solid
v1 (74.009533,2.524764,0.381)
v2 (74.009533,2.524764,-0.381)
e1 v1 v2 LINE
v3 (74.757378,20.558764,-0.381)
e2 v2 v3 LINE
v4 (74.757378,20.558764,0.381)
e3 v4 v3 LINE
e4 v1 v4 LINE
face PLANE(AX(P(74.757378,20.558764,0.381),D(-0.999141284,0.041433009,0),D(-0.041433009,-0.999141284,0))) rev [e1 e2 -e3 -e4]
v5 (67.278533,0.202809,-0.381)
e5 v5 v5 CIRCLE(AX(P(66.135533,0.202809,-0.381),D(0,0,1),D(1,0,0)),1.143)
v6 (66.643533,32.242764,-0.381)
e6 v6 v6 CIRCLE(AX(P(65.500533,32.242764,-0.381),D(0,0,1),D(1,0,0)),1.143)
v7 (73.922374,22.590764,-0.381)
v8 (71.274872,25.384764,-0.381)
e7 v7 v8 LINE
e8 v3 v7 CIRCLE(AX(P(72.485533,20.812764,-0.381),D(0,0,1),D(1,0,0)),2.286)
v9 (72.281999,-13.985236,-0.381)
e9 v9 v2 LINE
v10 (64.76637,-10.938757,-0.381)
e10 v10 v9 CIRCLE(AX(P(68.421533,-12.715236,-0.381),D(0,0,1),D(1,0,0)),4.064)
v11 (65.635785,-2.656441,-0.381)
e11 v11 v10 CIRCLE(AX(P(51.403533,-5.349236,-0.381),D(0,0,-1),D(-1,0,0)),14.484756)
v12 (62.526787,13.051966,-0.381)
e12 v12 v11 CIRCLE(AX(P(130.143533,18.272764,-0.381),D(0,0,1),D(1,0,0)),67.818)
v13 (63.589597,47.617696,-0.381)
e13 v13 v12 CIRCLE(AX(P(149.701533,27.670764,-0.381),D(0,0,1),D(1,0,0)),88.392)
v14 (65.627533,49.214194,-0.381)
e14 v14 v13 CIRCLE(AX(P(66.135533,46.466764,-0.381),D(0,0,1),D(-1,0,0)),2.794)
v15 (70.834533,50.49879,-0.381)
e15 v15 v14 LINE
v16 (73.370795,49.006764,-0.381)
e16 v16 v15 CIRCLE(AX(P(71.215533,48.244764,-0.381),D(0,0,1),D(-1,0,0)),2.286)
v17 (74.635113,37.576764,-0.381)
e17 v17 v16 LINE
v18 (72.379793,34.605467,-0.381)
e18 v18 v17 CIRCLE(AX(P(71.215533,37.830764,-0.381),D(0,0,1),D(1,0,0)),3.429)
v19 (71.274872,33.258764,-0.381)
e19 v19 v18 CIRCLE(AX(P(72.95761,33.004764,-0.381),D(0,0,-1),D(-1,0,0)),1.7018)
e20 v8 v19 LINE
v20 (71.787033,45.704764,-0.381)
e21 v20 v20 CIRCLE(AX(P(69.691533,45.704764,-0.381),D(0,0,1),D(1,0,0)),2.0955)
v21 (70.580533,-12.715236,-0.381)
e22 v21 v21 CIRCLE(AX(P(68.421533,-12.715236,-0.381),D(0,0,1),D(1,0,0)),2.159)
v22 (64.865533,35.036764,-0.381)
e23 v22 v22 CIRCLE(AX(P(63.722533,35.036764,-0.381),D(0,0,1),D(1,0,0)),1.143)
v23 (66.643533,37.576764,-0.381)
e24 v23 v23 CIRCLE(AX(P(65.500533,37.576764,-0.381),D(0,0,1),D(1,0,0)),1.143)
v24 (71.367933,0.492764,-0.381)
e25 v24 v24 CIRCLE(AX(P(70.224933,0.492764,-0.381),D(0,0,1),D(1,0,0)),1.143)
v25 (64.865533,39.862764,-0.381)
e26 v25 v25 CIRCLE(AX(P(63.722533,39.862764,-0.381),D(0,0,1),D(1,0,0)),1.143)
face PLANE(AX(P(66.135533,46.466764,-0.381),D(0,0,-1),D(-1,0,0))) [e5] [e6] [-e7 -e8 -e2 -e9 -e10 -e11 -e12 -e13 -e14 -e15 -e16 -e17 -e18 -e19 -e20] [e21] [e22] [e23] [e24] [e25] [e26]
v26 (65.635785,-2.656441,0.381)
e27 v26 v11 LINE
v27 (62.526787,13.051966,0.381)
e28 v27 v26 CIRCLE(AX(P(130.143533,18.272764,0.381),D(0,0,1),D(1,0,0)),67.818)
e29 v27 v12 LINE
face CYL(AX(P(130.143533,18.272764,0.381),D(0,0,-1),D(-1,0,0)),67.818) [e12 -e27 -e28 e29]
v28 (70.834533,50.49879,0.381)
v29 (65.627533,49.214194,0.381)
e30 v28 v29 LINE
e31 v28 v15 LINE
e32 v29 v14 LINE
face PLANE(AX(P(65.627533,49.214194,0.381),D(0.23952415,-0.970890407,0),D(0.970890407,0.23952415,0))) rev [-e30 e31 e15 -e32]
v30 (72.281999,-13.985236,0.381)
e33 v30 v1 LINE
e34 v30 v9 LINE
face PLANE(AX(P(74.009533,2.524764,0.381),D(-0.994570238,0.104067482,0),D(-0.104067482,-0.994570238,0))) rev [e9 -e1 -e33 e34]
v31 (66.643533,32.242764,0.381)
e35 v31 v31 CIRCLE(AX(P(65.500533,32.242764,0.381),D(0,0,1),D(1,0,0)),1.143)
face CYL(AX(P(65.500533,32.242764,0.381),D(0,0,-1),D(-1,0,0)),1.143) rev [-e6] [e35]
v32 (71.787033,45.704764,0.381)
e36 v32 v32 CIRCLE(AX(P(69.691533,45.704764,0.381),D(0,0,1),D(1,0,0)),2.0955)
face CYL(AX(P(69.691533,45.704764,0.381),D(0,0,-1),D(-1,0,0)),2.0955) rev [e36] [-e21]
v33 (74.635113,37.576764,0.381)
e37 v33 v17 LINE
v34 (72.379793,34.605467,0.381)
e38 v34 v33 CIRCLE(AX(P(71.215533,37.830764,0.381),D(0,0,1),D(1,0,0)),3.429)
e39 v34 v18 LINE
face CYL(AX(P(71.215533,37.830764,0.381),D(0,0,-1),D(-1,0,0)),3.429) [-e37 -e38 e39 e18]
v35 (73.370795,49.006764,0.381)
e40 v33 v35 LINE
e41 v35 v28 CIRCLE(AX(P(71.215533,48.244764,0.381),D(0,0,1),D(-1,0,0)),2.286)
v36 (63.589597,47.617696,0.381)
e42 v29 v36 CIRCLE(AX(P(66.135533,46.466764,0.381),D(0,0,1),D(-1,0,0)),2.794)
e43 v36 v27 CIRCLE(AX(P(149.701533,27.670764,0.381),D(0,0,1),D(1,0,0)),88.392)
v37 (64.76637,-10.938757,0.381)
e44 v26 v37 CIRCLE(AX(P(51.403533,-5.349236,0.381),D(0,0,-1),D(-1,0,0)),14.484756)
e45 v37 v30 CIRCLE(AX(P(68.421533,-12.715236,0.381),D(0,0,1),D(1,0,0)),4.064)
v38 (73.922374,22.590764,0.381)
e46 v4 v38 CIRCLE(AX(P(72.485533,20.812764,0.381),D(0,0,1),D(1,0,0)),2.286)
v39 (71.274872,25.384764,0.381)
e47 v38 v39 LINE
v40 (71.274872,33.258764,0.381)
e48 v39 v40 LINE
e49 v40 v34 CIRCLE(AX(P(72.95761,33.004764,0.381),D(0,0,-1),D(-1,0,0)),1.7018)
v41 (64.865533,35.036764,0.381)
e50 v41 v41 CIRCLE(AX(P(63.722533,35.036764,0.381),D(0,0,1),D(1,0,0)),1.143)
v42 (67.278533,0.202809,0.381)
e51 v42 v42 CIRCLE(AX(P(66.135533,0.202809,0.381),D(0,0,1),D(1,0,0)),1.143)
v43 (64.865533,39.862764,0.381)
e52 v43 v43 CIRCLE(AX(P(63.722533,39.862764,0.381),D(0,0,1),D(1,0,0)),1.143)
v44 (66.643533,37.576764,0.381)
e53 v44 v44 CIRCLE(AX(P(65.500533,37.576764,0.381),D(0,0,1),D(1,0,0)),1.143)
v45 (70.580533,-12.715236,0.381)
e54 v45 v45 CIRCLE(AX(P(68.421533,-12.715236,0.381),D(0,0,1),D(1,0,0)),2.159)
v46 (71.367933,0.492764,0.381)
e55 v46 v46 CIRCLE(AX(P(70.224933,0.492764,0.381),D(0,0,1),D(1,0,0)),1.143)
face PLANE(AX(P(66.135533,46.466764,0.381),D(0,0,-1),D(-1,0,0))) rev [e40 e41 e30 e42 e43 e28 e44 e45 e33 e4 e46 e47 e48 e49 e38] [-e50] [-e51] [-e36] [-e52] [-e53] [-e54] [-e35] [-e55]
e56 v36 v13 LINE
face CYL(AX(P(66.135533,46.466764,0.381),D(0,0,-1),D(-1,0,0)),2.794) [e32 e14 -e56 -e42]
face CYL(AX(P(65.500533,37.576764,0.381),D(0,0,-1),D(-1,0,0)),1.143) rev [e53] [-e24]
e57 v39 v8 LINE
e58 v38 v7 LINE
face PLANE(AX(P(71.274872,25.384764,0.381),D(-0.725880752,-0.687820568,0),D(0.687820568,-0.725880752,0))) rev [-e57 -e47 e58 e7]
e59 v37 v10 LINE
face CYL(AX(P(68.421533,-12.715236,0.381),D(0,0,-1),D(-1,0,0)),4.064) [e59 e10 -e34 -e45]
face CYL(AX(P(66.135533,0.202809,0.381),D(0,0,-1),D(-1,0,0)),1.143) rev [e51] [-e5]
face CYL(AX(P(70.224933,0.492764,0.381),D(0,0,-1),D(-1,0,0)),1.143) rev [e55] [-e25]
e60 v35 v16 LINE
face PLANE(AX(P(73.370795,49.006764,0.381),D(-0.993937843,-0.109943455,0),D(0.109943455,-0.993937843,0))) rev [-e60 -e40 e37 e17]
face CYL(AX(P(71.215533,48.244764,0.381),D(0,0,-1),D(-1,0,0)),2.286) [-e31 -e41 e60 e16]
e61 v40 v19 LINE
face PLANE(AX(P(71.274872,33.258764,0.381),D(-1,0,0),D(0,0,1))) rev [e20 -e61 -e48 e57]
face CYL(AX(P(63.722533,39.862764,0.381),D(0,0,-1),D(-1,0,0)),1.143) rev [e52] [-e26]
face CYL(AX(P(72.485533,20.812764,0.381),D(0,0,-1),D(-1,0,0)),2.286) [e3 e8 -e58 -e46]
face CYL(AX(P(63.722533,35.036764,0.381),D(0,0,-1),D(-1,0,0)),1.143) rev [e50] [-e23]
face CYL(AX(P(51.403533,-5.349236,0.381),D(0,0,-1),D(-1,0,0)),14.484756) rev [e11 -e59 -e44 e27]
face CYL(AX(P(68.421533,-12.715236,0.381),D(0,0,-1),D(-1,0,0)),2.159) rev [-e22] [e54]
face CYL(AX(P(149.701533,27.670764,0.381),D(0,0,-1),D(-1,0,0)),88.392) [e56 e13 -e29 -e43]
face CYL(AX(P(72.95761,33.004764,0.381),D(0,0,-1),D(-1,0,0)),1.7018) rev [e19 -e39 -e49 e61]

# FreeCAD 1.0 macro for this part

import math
import FreeCAD as App
import Part
import Sketcher

V = App.Vector
Q = App.Units.Quantity

doc = App.newDocument("Part")
body = doc.addObject("PartDesign::Body", "Body")

sketch1 = doc.addObject("Sketcher::SketchObject", "Sketch")
body.addObject(sketch1)
sketch1.AttachmentSupport = (doc.XY_Plane, [""])
sketch1.MapMode = "FlatFace"
sketch1.addGeometry(Part.LineSegment(V(72.3, -14, 0), V(74, 2.5, 0)), False)
sketch1.addGeometry(Part.LineSegment(V(74, 2.5, 0), V(74.8, 20.6, 0)), False)
sketch1.addGeometry(Part.ArcOfCircle(Part.Circle(V(72.5, 20.8, 0), V(0, 0, 1), 2.3), math.radians(-6), math.radians(51)), False)
sketch1.addGeometry(Part.LineSegment(V(73.9, 22.6, 0), V(71.3, 25.4, 0)), False)
sketch1.addGeometry(Part.LineSegment(V(71.3, 25.4, 0), V(71.3, 33.3, 0)), False)
sketch1.addGeometry(Part.ArcOfCircle(Part.Circle(V(73, 33, 0), V(0, 0, 1), 1.7), math.radians(110), math.radians(171)), False)
sketch1.addGeometry(Part.ArcOfCircle(Part.Circle(V(71.2, 37.8, 0), V(0, 0, 1), 3.4), math.radians(-70), math.radians(-4)), False)
sketch1.addGeometry(Part.LineSegment(V(74.6, 37.6, 0), V(73.4, 49, 0)), False)
sketch1.addGeometry(Part.ArcOfCircle(Part.Circle(V(71.2, 48.2, 0), V(0, 0, 1), 2.3), math.radians(19), math.radians(100)), False)
sketch1.addGeometry(Part.LineSegment(V(70.8, 50.5, 0), V(65.6, 49.2, 0)), False)
sketch1.addGeometry(Part.ArcOfCircle(Part.Circle(V(66.1, 46.5, 0), V(0, 0, 1), 2.8), math.radians(100), math.radians(156)), False)
sketch1.addGeometry(Part.ArcOfCircle(Part.Circle(V(149.7, 27.7, 0), V(0, 0, 1), 88.4), math.radians(167), math.radians(190)), False)
sketch1.addGeometry(Part.ArcOfCircle(Part.Circle(V(130.1, 18.3, 0), V(0, 0, 1), 67.8), math.radians(-175.58), math.radians(-162.02)), False)
sketch1.addGeometry(Part.ArcOfCircle(Part.Circle(V(51.4, -5.3, 0), V(0, 0, 1), 14.5), math.radians(-23), math.radians(11)), False)
sketch1.addGeometry(Part.ArcOfCircle(Part.Circle(V(68.4, -12.7, 0), V(0, 0, 1), 4.1), math.radians(154), math.radians(342)), False)
sketch1.addGeometry(Part.Circle(V(70.2, 0.5, 0), V(0, 0, 1), 1.1), False)
sketch1.addGeometry(Part.Circle(V(68.4, -12.7, 0), V(0, 0, 1), 2.2), False)
sketch1.addGeometry(Part.Circle(V(66.1, 0.2, 0), V(0, 0, 1), 1.1), False)
sketch1.addGeometry(Part.Circle(V(69.7, 45.7, 0), V(0, 0, 1), 2.1), False)
sketch1.addGeometry(Part.Circle(V(65.5, 32.2, 0), V(0, 0, 1), 1.1), False)
sketch1.addGeometry(Part.Circle(V(65.5, 37.6, 0), V(0, 0, 1), 1.1), False)
sketch1.addGeometry(Part.Circle(V(63.7, 35, 0), V(0, 0, 1), 1.1), False)
sketch1.addGeometry(Part.Circle(V(63.7, 39.9, 0), V(0, 0, 1), 1.1), False)
sketch1.addConstraint(Sketcher.Constraint("Coincident", 0, 2, 1, 1))
sketch1.addConstraint(Sketcher.Constraint("Coincident", 1, 2, 2, 1))
sketch1.addConstraint(Sketcher.Constraint("Coincident", 2, 2, 3, 1))
sketch1.addConstraint(Sketcher.Constraint("Coincident", 3, 2, 4, 1))
sketch1.addConstraint(Sketcher.Constraint("Coincident", 4, 2, 5, 2))
sketch1.addConstraint(Sketcher.Constraint("Tangent", 5, 1, 6, 1))
sketch1.addConstraint(Sketcher.Constraint("Coincident", 6, 2, 7, 1))
sketch1.addConstraint(Sketcher.Constraint("Coincident", 7, 2, 8, 1))
sketch1.addConstraint(Sketcher.Constraint("Coincident", 8, 2, 9, 1))
sketch1.addConstraint(Sketcher.Constraint("Coincident", 9, 2, 10, 1))
sketch1.addConstraint(Sketcher.Constraint("Coincident", 10, 2, 11, 1))
sketch1.addConstraint(Sketcher.Constraint("Coincident", 11, 2, 12, 1))
sketch1.addConstraint(Sketcher.Constraint("Coincident", 12, 2, 13, 2))
sketch1.addConstraint(Sketcher.Constraint("Coincident", 13, 1, 14, 1))
sketch1.addConstraint(Sketcher.Constraint("Coincident", 14, 2, 0, 1))
sketch1.addConstraint(Sketcher.Constraint("Vertical", 4))
sketch1.addConstraint(Sketcher.Constraint("Coincident", 16, 3, 14, 3))
sketch1.addConstraint(Sketcher.Constraint("Equal", 2, 8))
sketch1.addConstraint(Sketcher.Constraint("Equal", 15, 17))
sketch1.addConstraint(Sketcher.Constraint("Equal", 17, 19))
sketch1.addConstraint(Sketcher.Constraint("Equal", 19, 20))
sketch1.addConstraint(Sketcher.Constraint("Equal", 20, 21))
sketch1.addConstraint(Sketcher.Constraint("Equal", 21, 22))
sketch1.addConstraint(Sketcher.Constraint("Horizontal", 20, 3, 6, 2))
sketch1.addConstraint(Sketcher.Constraint("Vertical", 6, 3, 8, 3))
sketch1.addConstraint(Sketcher.Constraint("Vertical", 10, 3, 17, 3))
sketch1.addConstraint(Sketcher.Constraint("Vertical", 19, 3, 20, 3))
sketch1.addConstraint(Sketcher.Constraint("Vertical", 21, 3, 22, 3))
sketch1.addConstraint(Sketcher.Constraint("Diameter", 15, Q("0.09 in")))
sketch1.addConstraint(Sketcher.Constraint("Diameter", 16, Q("0.17 in")))
sketch1.addConstraint(Sketcher.Constraint("Radius", 2, Q("0.09 in")))
sketch1.addConstraint(Sketcher.Constraint("Radius", 10, Q("0.11 in")))
sketch1.addConstraint(Sketcher.Constraint("Radius", 11, Q("3.48 in")))
sketch1.addConstraint(Sketcher.Constraint("Radius", 12, Q("2.67 in")))
sketch1.addConstraint(Sketcher.Constraint("Radius", 14, Q("0.16 in")))
sketch1.addConstraint(Sketcher.Constraint("Diameter", 18, Q("0.165 in")))
sketch1.addConstraint(Sketcher.Constraint("Radius", 5, Q("0.067 in")))
sketch1.addConstraint(Sketcher.Constraint("Radius", 6, Q("0.135 in")))
sketch1.addConstraint(Sketcher.Constraint("DistanceY", 4, 1, 4, 2, Q("0.31 in")))
sketch1.addConstraint(Sketcher.Constraint("DistanceY", 5, 3, 8, 3, Q("0.6 in")))
sketch1.addConstraint(Sketcher.Constraint("DistanceX", 10, 3, 8, 3, Q("0.2 in")))
sketch1.addConstraint(Sketcher.Constraint("DistanceY", 11, 3, 6, 3, Q("0.4 in")))
sketch1.addConstraint(Sketcher.Constraint("DistanceY", 12, 3, 2, 3, Q("0.1 in")))
sketch1.addConstraint(Sketcher.Constraint("DistanceY", 13, 3, 6, 3, Q("1.7 in")))
sketch1.addConstraint(Sketcher.Constraint("DistanceY", 14, 3, 5, 3, Q("1.8 in")))
sketch1.addConstraint(Sketcher.Constraint("DistanceY", 15, 3, 2, 3, Q("0.8 in")))
sketch1.addConstraint(Sketcher.Constraint("DistanceY", 18, 3, 8, 3, Q("0.1 in")))
sketch1.addConstraint(Sketcher.Constraint("DistanceY", 21, 3, 20, 3, Q("0.1 in")))
sketch1.addConstraint(Sketcher.Constraint("DistanceY", 19, 3, 22, 3, Q("0.3 in")))
sketch1.addConstraint(Sketcher.Constraint("DistanceY", 14, 3, 0, 2, Q("0.6 in")))
sketch1.addConstraint(Sketcher.Constraint("DistanceY", 2, 2, 6, 3, Q("0.6 in")))
sketch1.addConstraint(Sketcher.Constraint("DistanceY", 3, 2, 5, 3, Q("0.3 in")))
sketch1.addConstraint(Sketcher.Constraint("DistanceY", 10, 3, 7, 2, Q("0.1 in")))
sketch1.addConstraint(Sketcher.Constraint("DistanceY", 2, 3, 5, 3, Q("0.48 in")))
sketch1.addConstraint(Sketcher.Constraint("DistanceY", 5, 3, 6, 3, Q("0.19 in")))
sketch1.addConstraint(Sketcher.Constraint("DistanceX", 6, 3, 2, 3, Q("0.05 in")))
sketch1.addConstraint(Sketcher.Constraint("DistanceY", 10, 3, 8, 3, Q("0.07 in")))
sketch1.addConstraint(Sketcher.Constraint("DistanceX", 2, 3, 11, 3, Q("3.04 in")))
sketch1.addConstraint(Sketcher.Constraint("DistanceX", 12, 3, 11, 3, Q("0.77 in")))
sketch1.addConstraint(Sketcher.Constraint("DistanceX", 13, 3, 2, 3, Q("0.83 in")))
sketch1.addConstraint(Sketcher.Constraint("DistanceX", 13, 3, 14, 3, Q("0.67 in")))
sketch1.addConstraint(Sketcher.Constraint("DistanceX", 18, 3, 8, 3, Q("0.06 in")))
sketch1.addConstraint(Sketcher.Constraint("DistanceY", 19, 3, 5, 3, Q("0.03 in")))
sketch1.addConstraint(Sketcher.Constraint("DistanceY", 19, 3, 20, 3, Q("0.21 in")))
sketch1.addConstraint(Sketcher.Constraint("DistanceX", 21, 3, 20, 3, Q("0.07 in")))
sketch1.addConstraint(Sketcher.Constraint("DistanceX", 17, 3, 0, 2, Q("0.31 in")))
sketch1.addConstraint(Sketcher.Constraint("DistanceY", 1, 2, 2, 3, Q("0.01 in")))
sketch1.addConstraint(Sketcher.Constraint("DistanceX", 9, 2, 10, 3, Q("0.02 in")))
sketch1.addConstraint(Sketcher.Constraint("DistanceY", 14, 2, 14, 3, Q("0.05 in")))
sketch1.addConstraint(Sketcher.Constraint("DistanceX", 14, 3, 15, 3, Q("0.071 in")))
sketch1.addConstraint(Sketcher.Constraint("DistanceX", 19, 3, 6, 3, Q("0.225 in")))
sketch1.addConstraint(Sketcher.Constraint("DistanceX", 8, 2, 8, 3, Q("0.015 in")))
sketch1.addConstraint(Sketcher.Constraint("DistanceY", -1, 1, 2, 3, Q("0.8194001 in")))
sketch1.addConstraint(Sketcher.Constraint("Radius", 13, 14.484756))
sketch1.addConstraint(Sketcher.Constraint("DistanceX", -1, 1, 14, 2, 72.281999))
sketch1.addConstraint(Sketcher.Constraint("DistanceY", -1, 1, 17, 3, 0.202809))
pad1 = doc.addObject("PartDesign::Pad", "Pad")
body.addObject(pad1)
pad1.Profile = sketch1
pad1.Length = Q("0.03 in")
pad1.Midplane = True

doc.recompute()
